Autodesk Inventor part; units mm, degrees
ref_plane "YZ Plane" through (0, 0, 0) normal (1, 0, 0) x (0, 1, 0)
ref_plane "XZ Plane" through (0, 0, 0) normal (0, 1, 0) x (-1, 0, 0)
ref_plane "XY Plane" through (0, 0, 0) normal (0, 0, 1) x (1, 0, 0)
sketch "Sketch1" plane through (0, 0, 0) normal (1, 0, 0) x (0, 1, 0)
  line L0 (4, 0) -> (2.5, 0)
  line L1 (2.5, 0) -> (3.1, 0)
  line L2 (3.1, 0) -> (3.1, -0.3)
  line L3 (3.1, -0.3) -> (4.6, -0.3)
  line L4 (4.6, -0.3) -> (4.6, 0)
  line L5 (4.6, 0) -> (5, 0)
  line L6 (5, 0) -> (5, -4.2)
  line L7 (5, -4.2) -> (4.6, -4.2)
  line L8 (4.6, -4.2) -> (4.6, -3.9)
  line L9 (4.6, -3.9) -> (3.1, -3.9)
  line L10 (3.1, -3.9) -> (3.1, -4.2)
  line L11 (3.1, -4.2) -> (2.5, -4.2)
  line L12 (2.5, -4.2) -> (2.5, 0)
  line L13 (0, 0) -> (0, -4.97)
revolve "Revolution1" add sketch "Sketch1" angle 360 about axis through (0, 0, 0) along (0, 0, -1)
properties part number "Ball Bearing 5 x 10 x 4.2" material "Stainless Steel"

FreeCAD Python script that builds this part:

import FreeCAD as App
import Part
import Sketcher
Q = App.Units.Quantity

doc = App.newDocument("Part")
body = doc.addObject("PartDesign::Body", "Body")

# Sketch on YZ plane
sketch1 = body.newObject("Sketcher::SketchObject", "Sketch")
sketch1.AttachmentSupport = (doc.getObject("YZ_Plane"), [""])
sketch1.MapMode = "FlatFace"
sketch1.addGeometry([
    Part.LineSegment(App.Vector(3.1, -0.3, 0), App.Vector(3.1, 0, 0)),  # 0
    Part.LineSegment(App.Vector(3.1, 0, 0), App.Vector(2.5, 0, 0)),  # 1
    Part.LineSegment(App.Vector(2.5, 0, 0), App.Vector(2.5, -4.2, 0)),  # 2
    Part.LineSegment(App.Vector(2.5, -4.2, 0), App.Vector(3.1, -4.2, 0)),  # 3
    Part.LineSegment(App.Vector(3.1, -4.2, 0), App.Vector(3.1, -3.9, 0)),  # 4
    Part.LineSegment(App.Vector(3.1, -3.9, 0), App.Vector(4.6, -3.9, 0)),  # 5
    Part.LineSegment(App.Vector(4.6, -3.9, 0), App.Vector(4.6, -4.2, 0)),  # 6
    Part.LineSegment(App.Vector(4.6, -4.2, 0), App.Vector(5, -4.2, 0)),  # 7
    Part.LineSegment(App.Vector(5, -4.2, 0), App.Vector(5, 0, 0)),  # 8
    Part.LineSegment(App.Vector(5, 0, 0), App.Vector(4.6, 0, 0)),  # 9
    Part.LineSegment(App.Vector(4.6, 0, 0), App.Vector(4.6, -0.3, 0)),  # 10
    Part.LineSegment(App.Vector(4.6, -0.3, 0), App.Vector(3.1, -0.3, 0)),  # 11
], False)
sketch1.addConstraint([
    Sketcher.Constraint("Coincident", 0, 2, 1, 1),
    Sketcher.Constraint("Coincident", 1, 2, 2, 1),
    Sketcher.Constraint("Coincident", 2, 2, 3, 1),
    Sketcher.Constraint("Coincident", 3, 2, 4, 1),
    Sketcher.Constraint("Coincident", 4, 2, 5, 1),
    Sketcher.Constraint("Coincident", 5, 2, 6, 1),
    Sketcher.Constraint("Coincident", 6, 2, 7, 1),
    Sketcher.Constraint("Coincident", 7, 2, 8, 1),
    Sketcher.Constraint("Coincident", 8, 2, 9, 1),
    Sketcher.Constraint("Coincident", 9, 2, 10, 1),
    Sketcher.Constraint("Coincident", 10, 2, 11, 1),
    Sketcher.Constraint("Coincident", 11, 2, 0, 1),
    Sketcher.Constraint("Vertical", 0),
    Sketcher.Constraint("Horizontal", 1),
    Sketcher.Constraint("Vertical", 2),
    Sketcher.Constraint("Horizontal", 3),
    Sketcher.Constraint("Vertical", 4),
    Sketcher.Constraint("Horizontal", 5),
    Sketcher.Constraint("Vertical", 6),
    Sketcher.Constraint("Horizontal", 7),
    Sketcher.Constraint("Vertical", 8),
    Sketcher.Constraint("Horizontal", 9),
    Sketcher.Constraint("Vertical", 10),
    Sketcher.Constraint("Horizontal", 11),
    Sketcher.Constraint("PointOnObject", 0, 2, -1),
    Sketcher.Constraint("PointOnObject", 8, 2, -1),
    Sketcher.Constraint("Horizontal", 3, 2, 6, 2),
    Sketcher.Constraint("Vertical", 0, 2, 3, 2),
    Sketcher.Constraint("Vertical", 6, 2, 9, 2),
    Sketcher.Constraint("Equal", 0, 4),
    Sketcher.Constraint("DistanceX", 1, 2, 1, 1, Q("0.6 mm")),
    Sketcher.Constraint("DistanceX", 5, 1, 5, 2, Q("1.5 mm")),
    Sketcher.Constraint("DistanceX", 7, 1, 7, 2, Q("0.4 mm")),
    Sketcher.Constraint("DistanceY", 0, 1, 0, 2, Q("0.3 mm")),
    Sketcher.Constraint("DistanceY", 2, 2, 2, 1, Q("4.2 mm")),
    Sketcher.Constraint("DistanceX", -1, 1, 7, 2, Q("5 mm")),
])
revolution = body.newObject("PartDesign::Revolution", "Revolution")
revolution.Profile = sketch1
revolution.ReferenceAxis = (sketch1, ["V_Axis"])
revolution.Angle = 360

doc.recompute()
